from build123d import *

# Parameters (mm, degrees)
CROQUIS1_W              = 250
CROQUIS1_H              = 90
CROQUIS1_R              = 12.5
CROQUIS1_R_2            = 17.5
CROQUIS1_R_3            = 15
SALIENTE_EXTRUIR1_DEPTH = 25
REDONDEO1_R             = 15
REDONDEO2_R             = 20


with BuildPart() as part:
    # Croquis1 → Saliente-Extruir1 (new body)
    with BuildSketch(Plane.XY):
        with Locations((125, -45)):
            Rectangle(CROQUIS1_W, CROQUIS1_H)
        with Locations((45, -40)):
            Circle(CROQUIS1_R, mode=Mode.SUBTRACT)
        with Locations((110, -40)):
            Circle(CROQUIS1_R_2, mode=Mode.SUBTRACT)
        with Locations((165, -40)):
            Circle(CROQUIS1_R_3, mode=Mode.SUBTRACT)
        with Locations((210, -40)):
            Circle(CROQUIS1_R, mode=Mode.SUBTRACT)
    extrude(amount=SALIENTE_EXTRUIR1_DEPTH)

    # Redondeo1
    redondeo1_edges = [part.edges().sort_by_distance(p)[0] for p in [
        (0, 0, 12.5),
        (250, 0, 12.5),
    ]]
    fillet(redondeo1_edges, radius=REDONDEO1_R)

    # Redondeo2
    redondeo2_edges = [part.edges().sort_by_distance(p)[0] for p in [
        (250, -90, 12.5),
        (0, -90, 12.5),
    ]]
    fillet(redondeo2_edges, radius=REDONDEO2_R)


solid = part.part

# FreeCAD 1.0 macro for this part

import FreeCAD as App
import Part
import Sketcher
from FreeCAD import Vector
Q = App.Units.Quantity


def edges_at(feature, points):
    """Names of the edges that pass closest to the given points."""
    edges = feature.Shape.Edges
    near = lambda p: min(range(len(edges)), key=lambda i: edges[i].distToShape(Part.Vertex(*p))[0])
    return sorted({f"Edge{near(p) + 1}" for p in points})


def add_polygon(sketch, points):
    """Adds a closed chain of lines whose ends are joined by coincident constraints."""
    first, n = sketch.GeometryCount, len(points)
    for a, b in zip(points, points[1:] + points[:1]):
        sketch.addGeometry(Part.LineSegment(App.Vector(*a, 0), App.Vector(*b, 0)), False)
    for i in range(n):
        sketch.addConstraint(Sketcher.Constraint("Coincident", first + i, 2, first + (i + 1) % n, 1))

doc = App.newDocument("Part")
body = doc.addObject("PartDesign::Body", "Body")

sketch1 = body.newObject("Sketcher::SketchObject", "Sketch")
sketch1.AttachmentSupport = (doc.getObject("XY_Plane"), [""])
sketch1.MapMode = "FlatFace"
add_polygon(sketch1, [(0, 0), (0, -90), (250, -90), (250, 0)])
sketch1.addGeometry(Part.Circle(Vector(45, -40, 0), Vector(0, 0, 1), 12), False)
sketch1.addGeometry(Part.Circle(Vector(110, -40, 0), Vector(0, 0, 1), 18), False)
sketch1.addGeometry(Part.Circle(Vector(165, -40, 0), Vector(0, 0, 1), 15), False)
sketch1.addGeometry(Part.Circle(Vector(210, -40, 0), Vector(0, 0, 1), 12), False)
sketch1.addConstraint(Sketcher.Constraint("Vertical", 0))
sketch1.addConstraint(Sketcher.Constraint("Horizontal", 1))
sketch1.addConstraint(Sketcher.Constraint("Vertical", 2))
sketch1.addConstraint(Sketcher.Constraint("Horizontal", 3))
sketch1.addConstraint(Sketcher.Constraint("Coincident", 3, 2, -1, 1))
sketch1.addConstraint(Sketcher.Constraint("Equal", 4, 7))
sketch1.addConstraint(Sketcher.Constraint("Horizontal", 4, 3, 5, 3))
sketch1.addConstraint(Sketcher.Constraint("Horizontal", 5, 3, 6, 3))
sketch1.addConstraint(Sketcher.Constraint("Horizontal", 6, 3, 7, 3))
sketch1.addConstraint(Sketcher.Constraint("Diameter", 4, Q("25 mm")))
sketch1.addConstraint(Sketcher.Constraint("Diameter", 5, Q("35 mm")))
sketch1.addConstraint(Sketcher.Constraint("Diameter", 6, Q("30 mm")))
sketch1.addConstraint(Sketcher.Constraint("DistanceX", 1, 1, 1, 2, Q("250 mm")))
sketch1.addConstraint(Sketcher.Constraint("DistanceY", 0, 2, 0, 1, Q("90 mm")))
sketch1.addConstraint(Sketcher.Constraint("DistanceX", -1, 1, 4, 3, Q("45 mm")))
sketch1.addConstraint(Sketcher.Constraint("DistanceY", 4, 3, -1, 1, Q("40 mm")))
sketch1.addConstraint(Sketcher.Constraint("DistanceX", -1, 1, 5, 3, Q("110 mm")))
sketch1.addConstraint(Sketcher.Constraint("DistanceX", -1, 1, 6, 3, Q("165 mm")))
sketch1.addConstraint(Sketcher.Constraint("DistanceX", -1, 1, 7, 3, Q("210 mm")))
pad1 = body.newObject("PartDesign::Pad", "Pad")
pad1.Profile = sketch1
pad1.Length = 25
doc.recompute()

fillet = body.newObject("PartDesign::Fillet", "Fillet")
fillet.Base = (pad1, edges_at(pad1, [(0, 0, 12.5), (250, 0, 12.5)]))
fillet.Radius = 15
doc.recompute()

fillet2 = body.newObject("PartDesign::Fillet", "Fillet001")
fillet2.Base = (fillet, edges_at(fillet, [(250, -90, 12.5), (0, -90, 12.5)]))
fillet2.Radius = 20

doc.recompute()
